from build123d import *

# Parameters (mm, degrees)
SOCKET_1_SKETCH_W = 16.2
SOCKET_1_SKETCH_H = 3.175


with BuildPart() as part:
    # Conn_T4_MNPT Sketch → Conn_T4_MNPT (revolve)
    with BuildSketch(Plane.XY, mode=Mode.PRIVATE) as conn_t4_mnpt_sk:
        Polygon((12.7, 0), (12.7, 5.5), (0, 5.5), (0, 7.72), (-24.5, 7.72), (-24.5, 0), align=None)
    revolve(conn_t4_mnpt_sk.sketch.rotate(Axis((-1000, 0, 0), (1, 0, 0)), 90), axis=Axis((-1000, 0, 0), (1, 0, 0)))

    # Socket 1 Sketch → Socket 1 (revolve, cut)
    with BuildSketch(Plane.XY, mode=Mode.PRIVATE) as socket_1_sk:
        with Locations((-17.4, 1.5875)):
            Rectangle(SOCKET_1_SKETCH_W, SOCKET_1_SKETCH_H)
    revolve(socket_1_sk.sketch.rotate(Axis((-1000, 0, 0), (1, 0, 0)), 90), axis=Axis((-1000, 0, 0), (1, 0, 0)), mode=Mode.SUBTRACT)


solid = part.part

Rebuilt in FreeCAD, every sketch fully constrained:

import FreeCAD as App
import Part
import Sketcher

doc = App.newDocument("Part")
body = doc.addObject("PartDesign::Body", "Body")

# Sketch on XY plane
sketch1 = body.newObject("Sketcher::SketchObject", "Sketch")
sketch1.AttachmentSupport = (doc.getObject("XY_Plane"), [""])
sketch1.MapMode = "FlatFace"
sketch1.addGeometry([
    Part.LineSegment(App.Vector(12.7, 0, 0), App.Vector(12.7, 5.5, 0)),  # 0
    Part.LineSegment(App.Vector(12.7, 5.5, 0), App.Vector(0, 5.5, 0)),  # 1
    Part.LineSegment(App.Vector(0, 5.5, 0), App.Vector(0, 7.72, 0)),  # 2
    Part.LineSegment(App.Vector(0, 7.72, 0), App.Vector(-24.5, 7.72, 0)),  # 3
    Part.LineSegment(App.Vector(-24.5, 7.72, 0), App.Vector(-24.5, 0, 0)),  # 4
    Part.LineSegment(App.Vector(-24.5, 0, 0), App.Vector(12.7, 0, 0)),  # 5
], False)
sketch1.addConstraint([
    Sketcher.Constraint("Coincident", 0, 2, 1, 1),
    Sketcher.Constraint("Coincident", 1, 2, 2, 1),
    Sketcher.Constraint("Coincident", 2, 2, 3, 1),
    Sketcher.Constraint("Coincident", 3, 2, 4, 1),
    Sketcher.Constraint("Coincident", 4, 2, 5, 1),
    Sketcher.Constraint("Coincident", 5, 2, 0, 1),
    Sketcher.Constraint("Vertical", 0),
    Sketcher.Constraint("Horizontal", 1),
    Sketcher.Constraint("Vertical", 2),
    Sketcher.Constraint("Horizontal", 3),
    Sketcher.Constraint("Vertical", 4),
    Sketcher.Constraint("Horizontal", 5),
    Sketcher.Constraint("PointOnObject", 1, 2, -2),
    Sketcher.Constraint("PointOnObject", 4, 2, -1),
    Sketcher.Constraint("DistanceX", 1, 2, 1, 1, 12.7),
    Sketcher.Constraint("DistanceX", 3, 2, 3, 1, 24.5),
    Sketcher.Constraint("DistanceY", 0, 1, 0, 2, 5.5),
    Sketcher.Constraint("DistanceY", 2, 1, 2, 2, 2.22),
])
revolution = body.newObject("PartDesign::Revolution", "Revolution")
revolution.Profile = sketch1
revolution.ReferenceAxis = (sketch1, ["H_Axis"])
revolution.Angle = 360

# Sketch on XY plane
sketch2 = body.newObject("Sketcher::SketchObject", "Sketch001")
sketch2.AttachmentSupport = (doc.getObject("XY_Plane"), [""])
sketch2.MapMode = "FlatFace"
sketch2.addGeometry([
    Part.LineSegment(App.Vector(-25.5, 3.175, 0), App.Vector(-25.5, 0, 0)),
    Part.LineSegment(App.Vector(-25.5, 0, 0), App.Vector(-9.3, 0, 0)),
    Part.LineSegment(App.Vector(-9.3, 0, 0), App.Vector(-9.3, 3.175, 0)),
    Part.LineSegment(App.Vector(-9.3, 3.175, 0), App.Vector(-25.5, 3.175, 0)),
], False)
sketch2.addConstraint([
    Sketcher.Constraint("Coincident", 0, 2, 1, 1),
    Sketcher.Constraint("Coincident", 1, 2, 2, 1),
    Sketcher.Constraint("Coincident", 2, 2, 3, 1),
    Sketcher.Constraint("Coincident", 3, 2, 0, 1),
    Sketcher.Constraint("Vertical", 0),
    Sketcher.Constraint("Horizontal", 1),
    Sketcher.Constraint("Vertical", 2),
    Sketcher.Constraint("Horizontal", 3),
    Sketcher.Constraint("PointOnObject", 0, 2, -1),
    Sketcher.Constraint("DistanceX", 1, 1, 1, 2, 16.2),
    Sketcher.Constraint("DistanceX", 0, 2, -1, 1, 25.5),
    Sketcher.Constraint("DistanceY", 0, 2, 0, 1, 3.175),
])
groove = body.newObject("PartDesign::Groove", "Groove")
groove.Profile = sketch2
groove.ReferenceAxis = (sketch2, ["H_Axis"])
groove.Angle = 360

doc.recompute()
